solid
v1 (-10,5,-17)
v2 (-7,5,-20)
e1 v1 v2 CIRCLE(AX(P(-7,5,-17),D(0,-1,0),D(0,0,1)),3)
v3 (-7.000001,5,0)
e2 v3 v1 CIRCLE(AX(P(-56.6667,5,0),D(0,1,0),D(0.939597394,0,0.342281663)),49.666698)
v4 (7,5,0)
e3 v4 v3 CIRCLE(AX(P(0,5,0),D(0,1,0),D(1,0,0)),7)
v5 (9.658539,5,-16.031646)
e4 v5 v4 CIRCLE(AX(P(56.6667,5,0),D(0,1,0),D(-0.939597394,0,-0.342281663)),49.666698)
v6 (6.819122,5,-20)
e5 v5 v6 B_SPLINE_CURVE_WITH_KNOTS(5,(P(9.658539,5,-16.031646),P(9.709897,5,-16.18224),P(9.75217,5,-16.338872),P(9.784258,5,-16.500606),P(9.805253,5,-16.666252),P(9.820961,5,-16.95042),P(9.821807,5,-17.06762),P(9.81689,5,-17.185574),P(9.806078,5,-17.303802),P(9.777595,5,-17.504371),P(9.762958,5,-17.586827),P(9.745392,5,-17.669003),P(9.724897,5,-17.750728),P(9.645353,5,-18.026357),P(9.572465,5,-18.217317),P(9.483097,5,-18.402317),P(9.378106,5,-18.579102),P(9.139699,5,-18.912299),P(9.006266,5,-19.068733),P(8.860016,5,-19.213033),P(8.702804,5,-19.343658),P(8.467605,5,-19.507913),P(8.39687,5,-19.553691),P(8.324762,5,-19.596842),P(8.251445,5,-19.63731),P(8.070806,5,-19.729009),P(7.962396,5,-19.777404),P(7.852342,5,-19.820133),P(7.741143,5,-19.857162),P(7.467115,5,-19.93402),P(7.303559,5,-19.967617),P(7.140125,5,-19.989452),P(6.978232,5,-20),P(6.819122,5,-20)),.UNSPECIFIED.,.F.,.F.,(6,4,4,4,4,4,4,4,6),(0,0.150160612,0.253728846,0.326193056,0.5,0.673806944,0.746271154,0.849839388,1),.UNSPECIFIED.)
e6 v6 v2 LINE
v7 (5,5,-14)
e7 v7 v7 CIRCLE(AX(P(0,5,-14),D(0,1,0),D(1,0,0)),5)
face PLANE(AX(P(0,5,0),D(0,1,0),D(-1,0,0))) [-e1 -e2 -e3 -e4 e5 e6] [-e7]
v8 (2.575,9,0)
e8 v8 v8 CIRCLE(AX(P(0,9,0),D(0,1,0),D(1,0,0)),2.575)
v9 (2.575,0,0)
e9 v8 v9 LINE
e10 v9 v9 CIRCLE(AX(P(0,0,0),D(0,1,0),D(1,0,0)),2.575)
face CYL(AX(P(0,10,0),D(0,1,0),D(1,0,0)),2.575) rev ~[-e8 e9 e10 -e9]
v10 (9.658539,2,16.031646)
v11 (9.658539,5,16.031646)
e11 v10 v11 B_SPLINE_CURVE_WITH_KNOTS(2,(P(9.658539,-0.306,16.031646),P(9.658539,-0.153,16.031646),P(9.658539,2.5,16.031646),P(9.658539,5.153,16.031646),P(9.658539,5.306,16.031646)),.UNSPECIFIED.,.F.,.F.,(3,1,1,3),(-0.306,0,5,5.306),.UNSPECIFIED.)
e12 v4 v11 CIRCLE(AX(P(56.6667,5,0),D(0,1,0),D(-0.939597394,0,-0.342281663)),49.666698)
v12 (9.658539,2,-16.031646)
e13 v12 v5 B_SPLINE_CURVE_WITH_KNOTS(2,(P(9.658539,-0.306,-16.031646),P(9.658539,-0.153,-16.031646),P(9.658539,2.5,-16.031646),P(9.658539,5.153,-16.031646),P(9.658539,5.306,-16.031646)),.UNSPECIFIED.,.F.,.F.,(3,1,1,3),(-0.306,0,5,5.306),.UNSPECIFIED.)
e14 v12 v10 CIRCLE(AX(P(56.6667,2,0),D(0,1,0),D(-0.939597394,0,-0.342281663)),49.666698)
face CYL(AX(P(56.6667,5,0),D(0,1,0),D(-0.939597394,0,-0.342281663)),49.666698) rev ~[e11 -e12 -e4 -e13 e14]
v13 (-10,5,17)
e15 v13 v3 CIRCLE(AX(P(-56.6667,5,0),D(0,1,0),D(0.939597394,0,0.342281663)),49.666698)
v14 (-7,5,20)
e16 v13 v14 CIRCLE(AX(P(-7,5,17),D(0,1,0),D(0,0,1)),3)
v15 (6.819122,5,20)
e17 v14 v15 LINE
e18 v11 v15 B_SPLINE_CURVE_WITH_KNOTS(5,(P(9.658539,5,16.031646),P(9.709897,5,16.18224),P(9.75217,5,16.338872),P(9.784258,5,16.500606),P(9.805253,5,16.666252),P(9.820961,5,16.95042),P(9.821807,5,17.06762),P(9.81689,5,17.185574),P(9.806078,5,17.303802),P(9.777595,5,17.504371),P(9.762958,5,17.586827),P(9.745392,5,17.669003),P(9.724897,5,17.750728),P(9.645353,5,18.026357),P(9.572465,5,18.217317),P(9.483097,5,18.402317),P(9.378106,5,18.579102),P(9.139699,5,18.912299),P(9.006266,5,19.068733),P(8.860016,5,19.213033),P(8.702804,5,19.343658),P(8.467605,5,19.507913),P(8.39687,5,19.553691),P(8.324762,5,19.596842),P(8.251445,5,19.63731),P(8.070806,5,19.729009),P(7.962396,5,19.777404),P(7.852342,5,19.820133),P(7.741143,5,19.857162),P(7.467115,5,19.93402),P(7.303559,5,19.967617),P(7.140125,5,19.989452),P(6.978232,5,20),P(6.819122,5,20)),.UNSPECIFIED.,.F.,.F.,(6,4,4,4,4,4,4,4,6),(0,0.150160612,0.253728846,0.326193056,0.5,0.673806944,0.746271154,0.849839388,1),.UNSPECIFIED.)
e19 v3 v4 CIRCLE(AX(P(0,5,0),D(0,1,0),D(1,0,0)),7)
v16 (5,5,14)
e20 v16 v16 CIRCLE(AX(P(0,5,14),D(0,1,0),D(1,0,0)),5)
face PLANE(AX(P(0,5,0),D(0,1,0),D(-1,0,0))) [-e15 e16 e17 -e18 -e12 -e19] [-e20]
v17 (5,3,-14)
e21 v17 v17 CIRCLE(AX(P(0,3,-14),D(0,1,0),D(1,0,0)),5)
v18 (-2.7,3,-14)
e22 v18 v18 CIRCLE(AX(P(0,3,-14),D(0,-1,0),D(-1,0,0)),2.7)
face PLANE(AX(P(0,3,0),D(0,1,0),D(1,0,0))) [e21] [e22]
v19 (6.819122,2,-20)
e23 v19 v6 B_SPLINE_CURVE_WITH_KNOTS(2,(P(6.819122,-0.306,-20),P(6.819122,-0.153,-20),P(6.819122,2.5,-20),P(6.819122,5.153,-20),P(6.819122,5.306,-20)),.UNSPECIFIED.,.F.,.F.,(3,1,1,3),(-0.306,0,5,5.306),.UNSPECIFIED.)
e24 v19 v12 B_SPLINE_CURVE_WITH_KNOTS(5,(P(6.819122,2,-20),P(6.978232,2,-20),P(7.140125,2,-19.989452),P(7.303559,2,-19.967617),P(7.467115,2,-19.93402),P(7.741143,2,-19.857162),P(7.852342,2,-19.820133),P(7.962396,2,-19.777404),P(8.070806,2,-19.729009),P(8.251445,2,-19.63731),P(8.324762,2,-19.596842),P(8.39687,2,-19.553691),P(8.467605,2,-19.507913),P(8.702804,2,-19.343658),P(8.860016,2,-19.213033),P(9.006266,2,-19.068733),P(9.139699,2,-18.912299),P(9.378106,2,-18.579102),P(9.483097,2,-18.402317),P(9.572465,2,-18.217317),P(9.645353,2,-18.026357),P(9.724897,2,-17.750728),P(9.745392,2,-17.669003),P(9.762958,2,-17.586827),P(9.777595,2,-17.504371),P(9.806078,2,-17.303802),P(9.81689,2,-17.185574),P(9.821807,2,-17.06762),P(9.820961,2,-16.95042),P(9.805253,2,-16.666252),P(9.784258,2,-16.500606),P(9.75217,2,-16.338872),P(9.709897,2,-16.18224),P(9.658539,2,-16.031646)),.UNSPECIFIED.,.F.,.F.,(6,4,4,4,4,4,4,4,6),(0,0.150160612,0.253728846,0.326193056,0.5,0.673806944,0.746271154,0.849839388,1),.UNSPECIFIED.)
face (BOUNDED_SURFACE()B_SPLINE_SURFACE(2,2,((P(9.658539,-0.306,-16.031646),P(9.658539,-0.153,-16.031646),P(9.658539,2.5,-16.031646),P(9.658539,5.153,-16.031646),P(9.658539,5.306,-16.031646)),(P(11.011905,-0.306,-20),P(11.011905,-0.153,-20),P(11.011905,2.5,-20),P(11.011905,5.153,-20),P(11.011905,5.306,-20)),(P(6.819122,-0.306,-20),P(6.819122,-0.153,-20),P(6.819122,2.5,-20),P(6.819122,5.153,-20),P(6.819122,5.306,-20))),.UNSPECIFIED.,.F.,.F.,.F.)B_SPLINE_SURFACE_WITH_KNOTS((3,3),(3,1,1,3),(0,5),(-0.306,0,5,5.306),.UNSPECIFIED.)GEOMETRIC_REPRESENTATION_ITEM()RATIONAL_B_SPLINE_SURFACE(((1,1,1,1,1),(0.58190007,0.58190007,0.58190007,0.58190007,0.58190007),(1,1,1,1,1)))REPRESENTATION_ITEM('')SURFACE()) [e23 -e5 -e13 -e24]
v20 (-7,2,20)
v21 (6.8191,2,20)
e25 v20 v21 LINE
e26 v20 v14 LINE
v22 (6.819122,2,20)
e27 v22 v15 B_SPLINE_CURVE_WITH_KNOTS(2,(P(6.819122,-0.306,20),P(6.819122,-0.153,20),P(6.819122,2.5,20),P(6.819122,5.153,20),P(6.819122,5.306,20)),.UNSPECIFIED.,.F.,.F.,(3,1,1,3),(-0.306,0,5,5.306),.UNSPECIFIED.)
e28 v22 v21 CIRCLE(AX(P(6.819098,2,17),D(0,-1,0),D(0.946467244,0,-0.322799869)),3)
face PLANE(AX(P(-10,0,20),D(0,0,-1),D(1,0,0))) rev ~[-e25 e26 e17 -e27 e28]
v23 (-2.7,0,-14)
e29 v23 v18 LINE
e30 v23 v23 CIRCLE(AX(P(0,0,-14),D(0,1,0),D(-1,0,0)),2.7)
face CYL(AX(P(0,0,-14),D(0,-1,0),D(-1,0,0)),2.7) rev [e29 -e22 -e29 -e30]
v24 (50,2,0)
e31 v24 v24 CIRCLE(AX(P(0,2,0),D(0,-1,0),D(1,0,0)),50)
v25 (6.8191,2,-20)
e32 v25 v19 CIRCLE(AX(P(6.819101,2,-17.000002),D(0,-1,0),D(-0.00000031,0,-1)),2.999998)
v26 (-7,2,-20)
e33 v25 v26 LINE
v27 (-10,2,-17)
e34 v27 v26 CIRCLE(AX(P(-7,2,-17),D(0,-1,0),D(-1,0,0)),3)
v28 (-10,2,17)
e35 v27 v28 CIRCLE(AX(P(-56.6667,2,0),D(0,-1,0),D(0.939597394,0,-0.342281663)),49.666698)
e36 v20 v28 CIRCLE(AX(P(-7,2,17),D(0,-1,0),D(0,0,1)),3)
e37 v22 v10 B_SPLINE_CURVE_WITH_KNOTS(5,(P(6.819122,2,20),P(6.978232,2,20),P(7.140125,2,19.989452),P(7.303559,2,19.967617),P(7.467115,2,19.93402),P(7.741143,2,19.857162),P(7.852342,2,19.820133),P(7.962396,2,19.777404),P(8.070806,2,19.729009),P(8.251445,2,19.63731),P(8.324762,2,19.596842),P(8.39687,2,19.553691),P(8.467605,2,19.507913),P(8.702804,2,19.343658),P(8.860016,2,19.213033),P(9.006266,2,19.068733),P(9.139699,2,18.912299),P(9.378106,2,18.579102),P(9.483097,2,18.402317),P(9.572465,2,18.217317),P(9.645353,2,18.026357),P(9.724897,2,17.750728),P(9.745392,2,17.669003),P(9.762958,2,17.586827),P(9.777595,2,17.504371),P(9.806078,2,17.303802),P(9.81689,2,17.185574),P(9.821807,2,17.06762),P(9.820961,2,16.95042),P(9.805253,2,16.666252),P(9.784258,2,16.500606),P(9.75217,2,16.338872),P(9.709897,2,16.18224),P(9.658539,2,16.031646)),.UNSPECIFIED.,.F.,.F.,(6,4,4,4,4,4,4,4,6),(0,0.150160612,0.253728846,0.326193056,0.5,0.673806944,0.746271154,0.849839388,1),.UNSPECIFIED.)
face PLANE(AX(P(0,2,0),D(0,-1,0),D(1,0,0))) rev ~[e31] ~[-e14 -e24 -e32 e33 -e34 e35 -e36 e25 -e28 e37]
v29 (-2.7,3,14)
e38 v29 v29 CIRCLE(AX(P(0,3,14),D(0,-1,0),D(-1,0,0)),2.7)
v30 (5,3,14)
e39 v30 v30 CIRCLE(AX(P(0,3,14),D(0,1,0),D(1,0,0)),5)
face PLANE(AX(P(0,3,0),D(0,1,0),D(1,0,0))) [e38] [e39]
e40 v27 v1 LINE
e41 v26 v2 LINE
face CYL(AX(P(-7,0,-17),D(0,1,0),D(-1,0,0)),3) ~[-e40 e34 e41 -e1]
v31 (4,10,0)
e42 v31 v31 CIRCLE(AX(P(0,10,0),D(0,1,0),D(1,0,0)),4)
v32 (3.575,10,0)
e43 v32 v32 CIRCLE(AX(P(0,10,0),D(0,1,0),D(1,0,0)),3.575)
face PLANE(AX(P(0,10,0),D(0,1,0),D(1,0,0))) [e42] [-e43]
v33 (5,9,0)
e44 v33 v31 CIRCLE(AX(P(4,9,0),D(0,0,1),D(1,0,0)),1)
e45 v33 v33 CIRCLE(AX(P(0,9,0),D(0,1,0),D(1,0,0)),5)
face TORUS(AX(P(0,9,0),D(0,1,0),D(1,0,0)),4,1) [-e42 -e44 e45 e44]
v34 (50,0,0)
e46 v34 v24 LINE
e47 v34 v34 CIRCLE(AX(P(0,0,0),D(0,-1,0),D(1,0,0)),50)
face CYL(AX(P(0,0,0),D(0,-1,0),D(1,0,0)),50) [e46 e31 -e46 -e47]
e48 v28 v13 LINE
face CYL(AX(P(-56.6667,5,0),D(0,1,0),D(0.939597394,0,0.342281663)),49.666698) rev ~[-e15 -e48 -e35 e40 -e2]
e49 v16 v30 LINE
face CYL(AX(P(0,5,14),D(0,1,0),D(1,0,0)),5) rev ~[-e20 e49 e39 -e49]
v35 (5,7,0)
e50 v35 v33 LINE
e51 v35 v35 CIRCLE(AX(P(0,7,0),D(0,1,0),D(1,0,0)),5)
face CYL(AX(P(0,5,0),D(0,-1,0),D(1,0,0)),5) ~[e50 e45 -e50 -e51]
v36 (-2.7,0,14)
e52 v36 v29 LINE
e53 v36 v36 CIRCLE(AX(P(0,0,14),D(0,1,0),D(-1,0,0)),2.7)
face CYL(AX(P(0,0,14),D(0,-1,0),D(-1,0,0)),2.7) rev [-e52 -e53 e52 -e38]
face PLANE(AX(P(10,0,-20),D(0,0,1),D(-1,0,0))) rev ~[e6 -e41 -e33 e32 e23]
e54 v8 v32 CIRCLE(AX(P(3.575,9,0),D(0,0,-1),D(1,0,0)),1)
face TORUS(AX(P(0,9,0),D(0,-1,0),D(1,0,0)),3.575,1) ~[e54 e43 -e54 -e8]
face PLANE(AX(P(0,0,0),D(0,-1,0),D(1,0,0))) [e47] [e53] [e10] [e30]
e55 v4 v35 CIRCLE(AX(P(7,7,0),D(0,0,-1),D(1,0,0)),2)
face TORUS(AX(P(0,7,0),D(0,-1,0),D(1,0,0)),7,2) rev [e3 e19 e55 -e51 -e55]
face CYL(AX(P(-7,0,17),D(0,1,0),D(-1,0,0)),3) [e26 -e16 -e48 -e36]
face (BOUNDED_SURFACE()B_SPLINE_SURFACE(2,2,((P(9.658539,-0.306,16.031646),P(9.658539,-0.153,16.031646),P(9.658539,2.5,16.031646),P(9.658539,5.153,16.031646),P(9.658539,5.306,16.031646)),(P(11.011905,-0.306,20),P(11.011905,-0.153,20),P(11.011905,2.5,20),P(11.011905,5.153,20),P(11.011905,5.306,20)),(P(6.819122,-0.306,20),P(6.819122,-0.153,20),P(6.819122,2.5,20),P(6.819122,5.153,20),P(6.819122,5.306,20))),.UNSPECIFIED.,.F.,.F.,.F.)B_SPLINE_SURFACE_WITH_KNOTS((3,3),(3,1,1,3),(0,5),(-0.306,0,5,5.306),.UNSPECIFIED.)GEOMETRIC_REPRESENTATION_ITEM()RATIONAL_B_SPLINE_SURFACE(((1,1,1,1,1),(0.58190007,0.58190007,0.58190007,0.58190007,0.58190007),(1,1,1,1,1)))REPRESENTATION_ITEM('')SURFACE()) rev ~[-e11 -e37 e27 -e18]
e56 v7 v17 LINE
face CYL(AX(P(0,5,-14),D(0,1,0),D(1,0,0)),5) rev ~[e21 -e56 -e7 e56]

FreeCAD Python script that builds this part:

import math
import FreeCAD as App
import Part
import Sketcher
from FreeCAD import Vector


def edges_at(feature, points):
    """Names of the edges that pass closest to the given points."""
    edges = feature.Shape.Edges
    near = lambda p: min(range(len(edges)), key=lambda i: edges[i].distToShape(Part.Vertex(*p))[0])
    return sorted({f"Edge{near(p) + 1}" for p in points})


def add_polygon(sketch, points):
    """Adds a closed chain of lines whose ends are joined by coincident constraints."""
    first, n = sketch.GeometryCount, len(points)
    for a, b in zip(points, points[1:] + points[:1]):
        sketch.addGeometry(Part.LineSegment(App.Vector(*a, 0), App.Vector(*b, 0)), False)
    for i in range(n):
        sketch.addConstraint(Sketcher.Constraint("Coincident", first + i, 2, first + (i + 1) % n, 1))

doc = App.newDocument("Part")
body = doc.addObject("PartDesign::Body", "Body")

# Sketch on XZ plane
sketch1 = body.newObject("Sketcher::SketchObject", "Sketch")
sketch1.AttachmentSupport = (doc.getObject("XZ_Plane"), [""])
sketch1.MapMode = "FlatFace"
add_polygon(sketch1, [(-10, -20), (-10, 20), (10, 20), (10, -20)])  # lines 0-3
sketch1.addGeometry(Part.Circle(Vector(0, -14, 0), Vector(0, 0, 1), 2.7), False)  # 4
sketch1.addGeometry(Part.Circle(Vector(0, 0, 0), Vector(0, 0, 1), 2.7), False)  # 5
sketch1.addGeometry(Part.Circle(Vector(0, 14, 0), Vector(0, 0, 1), 2.7), False)  # 6
sketch1.addConstraint(Sketcher.Constraint("Vertical", 0))
sketch1.addConstraint(Sketcher.Constraint("Horizontal", 1))
sketch1.addConstraint(Sketcher.Constraint("Vertical", 2))
sketch1.addConstraint(Sketcher.Constraint("Horizontal", 3))
sketch1.addConstraint(Sketcher.Constraint("Coincident", 5, 3, -1, 1))
sketch1.addConstraint(Sketcher.Constraint("Equal", 4, 5))
sketch1.addConstraint(Sketcher.Constraint("Equal", 5, 6))
sketch1.addConstraint(Sketcher.Constraint("Symmetric", 4, 3, 6, 3, -1, 1))
sketch1.addConstraint(Sketcher.Constraint("Symmetric", 0, 2, 2, 2, -1, 1))
sketch1.addConstraint(Sketcher.Constraint("PointOnObject", 4, 3, -2))
sketch1.addConstraint(Sketcher.Constraint("Diameter", 4, 5.4))
sketch1.addConstraint(Sketcher.Constraint("DistanceX", 1, 1, 1, 2, 20.0))
sketch1.addConstraint(Sketcher.Constraint("DistanceY", 0, 1, 0, 2, 40.0))
sketch1.addConstraint(Sketcher.Constraint("DistanceY", 6, 3, 0, 2, 6.0))
pad1 = body.newObject("PartDesign::Pad", "Pad")
pad1.Profile = sketch1
pad1.Length = 5
pad1.Reversed = True

# Sketch on XZ plane
sketch2 = body.newObject("Sketcher::SketchObject", "Sketch001")
sketch2.AttachmentSupport = (doc.getObject("XZ_Plane"), [""])
sketch2.MapMode = "FlatFace"
sketch2.AttachmentOffset = App.Placement(Vector(0, 0, -5), App.Rotation())
sketch2.addGeometry(Part.Circle(Vector(0, 0, 0), Vector(0, 0, 1), 5), False)
sketch2.addGeometry(Part.Circle(Vector(0, 0, 0), Vector(0, 0, 1), 2.7), False)
sketch2.addConstraint(Sketcher.Constraint("Coincident", 0, 3, -1, 1))
sketch2.addConstraint(Sketcher.Constraint("Coincident", 1, 3, -1, 1))
sketch2.addConstraint(Sketcher.Constraint("Diameter", 0, 10.0))
sketch2.addConstraint(Sketcher.Constraint("Diameter", 1, 5.4))
pad2 = body.newObject("PartDesign::Pad", "Pad001")
pad2.Profile = sketch2
pad2.Length = 5
pad2.Reversed = True

# Sketch on XZ plane
sketch3 = body.newObject("Sketcher::SketchObject", "Sketch002")
sketch3.AttachmentSupport = (doc.getObject("XZ_Plane"), [""])
sketch3.MapMode = "FlatFace"
sketch3.AttachmentOffset = App.Placement(Vector(0, 0, -10), App.Rotation())
sketch3.addGeometry(Part.Circle(Vector(0, 0, 0), Vector(0, 0, 1), 2.7), False)
sketch3.addGeometry(Part.Circle(Vector(0, 0, 0), Vector(0, 0, 1), 2.6), False)
sketch3.addConstraint(Sketcher.Constraint("Coincident", 0, 3, -1, 1))
sketch3.addConstraint(Sketcher.Constraint("Coincident", 1, 3, -1, 1))
sketch3.addConstraint(Sketcher.Constraint("Diameter", 1, 5.15))
sketch3.addConstraint(Sketcher.Constraint("Diameter", 0, 5.4))
pad3 = body.newObject("PartDesign::Pad", "Pad002")
pad3.Profile = sketch3
pad3.Length = 10
doc.recompute()

fillet = body.newObject("PartDesign::Fillet", "Fillet")
fillet.Base = (pad3, edges_at(pad3, [
    (-10, 2.5, -20),
    (10, 2.5, -20),
    (10, 2.5, 20),
    (-10, 2.5, 20),
]))
fillet.Radius = 3
doc.recompute()

fillet2 = body.newObject("PartDesign::Fillet", "Fillet001")
fillet2.Base = (fillet, edges_at(fillet, [(-5, 5, 0)]))
fillet2.Radius = 2

# Sketch on XZ plane
sketch4 = body.newObject("Sketcher::SketchObject", "Sketch003")
sketch4.AttachmentSupport = (doc.getObject("XZ_Plane"), [""])
sketch4.MapMode = "FlatFace"
sketch4.AttachmentOffset = App.Placement(Vector(0, 0, -5), App.Rotation())
sketch4.addGeometry(Part.ArcOfCircle(Part.Circle(Vector(57, 0, 0), Vector(0, 0, 1), 50), math.radians(160), math.radians(200)), False)
sketch4.addGeometry(Part.LineSegment(Vector(10, 17, 0), Vector(10, -17, 0)), False)
sketch4.addGeometry(Part.ArcOfCircle(Part.Circle(Vector(-57, 0, 0), Vector(0, 0, 1), 50), math.radians(-20), math.radians(20)), False)
sketch4.addGeometry(Part.LineSegment(Vector(-10, -17, 0), Vector(-10, 17, 0)), False)
sketch4.addConstraint(Sketcher.Constraint("Coincident", 0, 1, 1, 1))
sketch4.addConstraint(Sketcher.Constraint("Coincident", 1, 2, 0, 2))
sketch4.addConstraint(Sketcher.Constraint("Coincident", 2, 1, 3, 1))
sketch4.addConstraint(Sketcher.Constraint("Coincident", 3, 2, 2, 2))
sketch4.addConstraint(Sketcher.Constraint("Vertical", 1))
sketch4.addConstraint(Sketcher.Constraint("Vertical", 3))
sketch4.addConstraint(Sketcher.Constraint("Equal", 0, 2))
sketch4.addConstraint(Sketcher.Constraint("Symmetric", 0, 3, 2, 3, -1, 1))
sketch4.addConstraint(Sketcher.Constraint("Symmetric", 1, 2, 2, 1, -2))
sketch4.addConstraint(Sketcher.Constraint("DistanceY", 1, 2, 1, 1, 34.0))
sketch4.addConstraint(Sketcher.Constraint("DistanceX", -1, 1, 0, 1, 10.0))
sketch4.addConstraint(Sketcher.Constraint("Radius", 0, 49.6667))
pocket1 = body.newObject("PartDesign::Pocket", "Pocket")
pocket1.Profile = sketch4
pocket1.Type = "ThroughAll"
pocket1.Reversed = True
doc.recompute()

fillet3 = body.newObject("PartDesign::Fillet", "Fillet002")
fillet3.Base = (pocket1, edges_at(pocket1, [(10, 2.5, 17), (10, 2.5, -17)]))
fillet3.Radius = 3
doc.recompute()

fillet4 = body.newObject("PartDesign::Fillet", "Fillet003")
fillet4.Base = (fillet3, edges_at(fillet3, [(-5, 10, 0), (-2.575, 10, 0)]))
fillet4.Radius = 1

# Sketch on XZ plane
sketch5 = body.newObject("Sketcher::SketchObject", "Sketch004")
sketch5.AttachmentSupport = (doc.getObject("XZ_Plane"), [""])
sketch5.MapMode = "FlatFace"
sketch5.AttachmentOffset = App.Placement(Vector(0, 0, -5), App.Rotation())
sketch5.addGeometry(Part.Circle(Vector(0, 14, 0), Vector(0, 0, 1), 5), False)
sketch5.addGeometry(Part.Circle(Vector(0, -14, 0), Vector(0, 0, 1), 5), False)
sketch5.addConstraint(Sketcher.Constraint("Equal", 0, 1))
sketch5.addConstraint(Sketcher.Constraint("Symmetric", 0, 3, 1, 3, -1, 1))
sketch5.addConstraint(Sketcher.Constraint("PointOnObject", 0, 3, -2))
sketch5.addConstraint(Sketcher.Constraint("Diameter", 0, 10.0))
sketch5.addConstraint(Sketcher.Constraint("DistanceY", -1, 1, 0, 3, 14.0))
pocket2 = body.newObject("PartDesign::Pocket", "Pocket001")
pocket2.Profile = sketch5
pocket2.Length = 2
pocket2.Reversed = True

# Sketch on XZ plane
sketch6 = body.newObject("Sketcher::SketchObject", "Sketch005")
sketch6.AttachmentSupport = (doc.getObject("XZ_Plane"), [""])
sketch6.MapMode = "FlatFace"
sketch6.addGeometry(Part.Circle(Vector(0, 0, 0), Vector(0, 0, 1), 50), False)
sketch6.addGeometry(Part.ArcOfCircle(Part.Circle(Vector(6.8, -17, 0), Vector(0, 0, 1), 3), math.radians(-90), math.radians(19)), False)
sketch6.addGeometry(Part.LineSegment(Vector(6.8, -20, 0), Vector(-7, -20, 0)), False)
sketch6.addGeometry(Part.ArcOfCircle(Part.Circle(Vector(-7, -17, 0), Vector(0, 0, 1), 3), math.radians(180), math.radians(270)), False)
sketch6.addGeometry(Part.ArcOfCircle(Part.Circle(Vector(-56.7, 0, 0), Vector(0, 0, 1), 49.7), math.radians(-20), math.radians(20)), False)
sketch6.addGeometry(Part.ArcOfCircle(Part.Circle(Vector(-7, 17, 0), Vector(0, 0, 1), 3), math.radians(90), math.radians(180)), False)
sketch6.addGeometry(Part.LineSegment(Vector(-7, 20, 0), Vector(6.8, 20, 0)), False)
sketch6.addGeometry(Part.ArcOfCircle(Part.Circle(Vector(6.8, 17, 0), Vector(0, 0, 1), 3), math.radians(-19), math.radians(90)), False)
sketch6.addGeometry(Part.ArcOfCircle(Part.Circle(Vector(56.7, 0, 0), Vector(0, 0, 1), 49.7), math.radians(161), math.radians(199)), False)
sketch6.addConstraint(Sketcher.Constraint("Tangent", 1, 1, 2, 1))
sketch6.addConstraint(Sketcher.Constraint("Tangent", 2, 2, 3, 2))
sketch6.addConstraint(Sketcher.Constraint("Coincident", 3, 1, 4, 1))
sketch6.addConstraint(Sketcher.Constraint("Coincident", 4, 2, 5, 2))
sketch6.addConstraint(Sketcher.Constraint("Tangent", 5, 1, 6, 1))
sketch6.addConstraint(Sketcher.Constraint("Tangent", 6, 2, 7, 2))
sketch6.addConstraint(Sketcher.Constraint("Tangent", 7, 1, 8, 1))
sketch6.addConstraint(Sketcher.Constraint("Tangent", 8, 2, 1, 2))
sketch6.addConstraint(Sketcher.Constraint("Horizontal", 2))
sketch6.addConstraint(Sketcher.Constraint("Horizontal", 6))
sketch6.addConstraint(Sketcher.Constraint("Coincident", 0, 3, -1, 1))
sketch6.addConstraint(Sketcher.Constraint("Equal", 1, 3))
sketch6.addConstraint(Sketcher.Constraint("Equal", 3, 5))
sketch6.addConstraint(Sketcher.Constraint("Equal", 5, 7))
sketch6.addConstraint(Sketcher.Constraint("Equal", 4, 8))
sketch6.addConstraint(Sketcher.Constraint("Symmetric", 4, 3, 8, 3, -1, 1))
sketch6.addConstraint(Sketcher.Constraint("Symmetric", 3, 3, 5, 3, -1))
sketch6.addConstraint(Sketcher.Constraint("PointOnObject", 4, 3, -1))
sketch6.addConstraint(Sketcher.Constraint("Horizontal", 1, 3, 3, 1))
sketch6.addConstraint(Sketcher.Constraint("Diameter", 0, 100.0))
sketch6.addConstraint(Sketcher.Constraint("Radius", 1, 3.0))
sketch6.addConstraint(Sketcher.Constraint("DistanceY", 1, 3, -1, 1, 17.0))
sketch6.addConstraint(Sketcher.Constraint("DistanceX", 3, 3, -1, 1, 7.0))
sketch6.addConstraint(Sketcher.Constraint("Radius", 4, 49.6667))
pad4 = body.newObject("PartDesign::Pad", "Pad003")
pad4.Profile = sketch6
pad4.Length = 2
pad4.Reversed = True

doc.recompute()
